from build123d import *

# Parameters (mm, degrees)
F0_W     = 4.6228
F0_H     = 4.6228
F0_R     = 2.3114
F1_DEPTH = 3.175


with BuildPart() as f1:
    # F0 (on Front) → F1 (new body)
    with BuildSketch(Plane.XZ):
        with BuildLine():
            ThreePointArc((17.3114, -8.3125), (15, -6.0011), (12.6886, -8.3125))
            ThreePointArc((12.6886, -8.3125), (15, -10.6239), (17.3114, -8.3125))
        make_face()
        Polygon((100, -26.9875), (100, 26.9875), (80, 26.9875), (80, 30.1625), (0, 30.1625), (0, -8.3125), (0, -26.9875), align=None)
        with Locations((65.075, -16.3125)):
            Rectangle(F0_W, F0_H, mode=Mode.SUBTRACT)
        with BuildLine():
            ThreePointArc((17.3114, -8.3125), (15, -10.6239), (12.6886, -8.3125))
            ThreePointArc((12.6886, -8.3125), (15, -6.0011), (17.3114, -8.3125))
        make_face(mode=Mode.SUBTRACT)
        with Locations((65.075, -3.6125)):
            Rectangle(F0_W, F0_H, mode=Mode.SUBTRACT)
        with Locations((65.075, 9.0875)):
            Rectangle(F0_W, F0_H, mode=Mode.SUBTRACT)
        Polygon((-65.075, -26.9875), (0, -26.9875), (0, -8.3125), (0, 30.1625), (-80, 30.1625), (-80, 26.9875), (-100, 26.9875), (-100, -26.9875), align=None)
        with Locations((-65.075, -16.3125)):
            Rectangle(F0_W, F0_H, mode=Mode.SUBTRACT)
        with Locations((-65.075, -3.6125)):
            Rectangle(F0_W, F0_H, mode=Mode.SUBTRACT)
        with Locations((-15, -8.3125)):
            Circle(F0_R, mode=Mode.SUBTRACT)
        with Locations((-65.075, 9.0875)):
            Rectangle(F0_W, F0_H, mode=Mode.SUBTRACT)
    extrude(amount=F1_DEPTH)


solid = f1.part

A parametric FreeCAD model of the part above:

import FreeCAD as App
import Part
import Sketcher

V = App.Vector

doc = App.newDocument("Part")
body = doc.addObject("PartDesign::Body", "Body")

sketch1 = doc.addObject("Sketcher::SketchObject", "Sketch")
body.addObject(sketch1)
sketch1.AttachmentSupport = (doc.XZ_Plane, [""])
sketch1.MapMode = "FlatFace"
sketch1.addGeometry([
    Part.LineSegment(V(100, -26.9875, 0), V(100, 26.9875, 0)),
    Part.LineSegment(V(100, 26.9875, 0), V(80, 26.9875, 0)),
    Part.LineSegment(V(80, 26.9875, 0), V(80, 30.1625, 0)),
    Part.LineSegment(V(80, 30.1625, 0), V(-80, 30.1625, 0)),
    Part.LineSegment(V(-80, 30.1625, 0), V(-80, 26.9875, 0)),
    Part.LineSegment(V(-80, 26.9875, 0), V(-100, 26.9875, 0)),
    Part.LineSegment(V(-100, 26.9875, 0), V(-100, -26.9875, 0)),
    Part.LineSegment(V(-100, -26.9875, 0), V(100, -26.9875, 0)),
    Part.LineSegment(V(-62.7636, -18.6239, 0), V(-67.3864, -18.6239, 0)),
    Part.LineSegment(V(-67.3864, -18.6239, 0), V(-67.3864, -14.0011, 0)),
    Part.LineSegment(V(-67.3864, -14.0011, 0), V(-62.7636, -14.0011, 0)),
    Part.LineSegment(V(-62.7636, -14.0011, 0), V(-62.7636, -18.6239, 0)),
    Part.LineSegment(V(-62.7636, -5.9239, 0), V(-67.3864, -5.9239, 0)),
    Part.LineSegment(V(-67.3864, -5.9239, 0), V(-67.3864, -1.3011, 0)),
    Part.LineSegment(V(-67.3864, -1.3011, 0), V(-62.7636, -1.3011, 0)),
    Part.LineSegment(V(-62.7636, -1.3011, 0), V(-62.7636, -5.9239, 0)),
    Part.Circle(V(-15, -8.3125, 0), V(0, 0, 1), 2.3114),
    Part.LineSegment(V(67.3864, -18.6239, 0), V(62.7636, -18.6239, 0)),
    Part.LineSegment(V(62.7636, -18.6239, 0), V(62.7636, -14.0011, 0)),
    Part.LineSegment(V(62.7636, -14.0011, 0), V(67.3864, -14.0011, 0)),
    Part.LineSegment(V(67.3864, -14.0011, 0), V(67.3864, -18.6239, 0)),
    Part.Circle(V(15, -8.3125, 0), V(0, 0, 1), 2.3114),
    Part.LineSegment(V(67.3864, -5.9239, 0), V(62.7636, -5.9239, 0)),
    Part.LineSegment(V(62.7636, -5.9239, 0), V(62.7636, -1.3011, 0)),
    Part.LineSegment(V(62.7636, -1.3011, 0), V(67.3864, -1.3011, 0)),
    Part.LineSegment(V(67.3864, -1.3011, 0), V(67.3864, -5.9239, 0)),
    Part.LineSegment(V(-62.7636, 6.7761, 0), V(-67.3864, 6.7761, 0)),
    Part.LineSegment(V(-67.3864, 6.7761, 0), V(-67.3864, 11.3989, 0)),
    Part.LineSegment(V(-67.3864, 11.3989, 0), V(-62.7636, 11.3989, 0)),
    Part.LineSegment(V(-62.7636, 11.3989, 0), V(-62.7636, 6.7761, 0)),
    Part.LineSegment(V(67.3864, 6.7761, 0), V(62.7636, 6.7761, 0)),
    Part.LineSegment(V(62.7636, 6.7761, 0), V(62.7636, 11.3989, 0)),
    Part.LineSegment(V(62.7636, 11.3989, 0), V(67.3864, 11.3989, 0)),
    Part.LineSegment(V(67.3864, 11.3989, 0), V(67.3864, 6.7761, 0)),
], False)
sketch1.addConstraint([
    Sketcher.Constraint("Coincident", 0, 2, 1, 1),
    Sketcher.Constraint("Coincident", 1, 2, 2, 1),
    Sketcher.Constraint("Coincident", 2, 2, 3, 1),
    Sketcher.Constraint("Coincident", 3, 2, 4, 1),
    Sketcher.Constraint("Coincident", 4, 2, 5, 1),
    Sketcher.Constraint("Coincident", 5, 2, 6, 1),
    Sketcher.Constraint("Coincident", 6, 2, 7, 1),
    Sketcher.Constraint("Coincident", 7, 2, 0, 1),
    Sketcher.Constraint("Coincident", 8, 2, 9, 1),
    Sketcher.Constraint("Coincident", 9, 2, 10, 1),
    Sketcher.Constraint("Coincident", 10, 2, 11, 1),
    Sketcher.Constraint("Coincident", 11, 2, 8, 1),
    Sketcher.Constraint("Coincident", 12, 2, 13, 1),
    Sketcher.Constraint("Coincident", 13, 2, 14, 1),
    Sketcher.Constraint("Coincident", 14, 2, 15, 1),
    Sketcher.Constraint("Coincident", 15, 2, 12, 1),
    Sketcher.Constraint("Coincident", 17, 2, 18, 1),
    Sketcher.Constraint("Coincident", 18, 2, 19, 1),
    Sketcher.Constraint("Coincident", 19, 2, 20, 1),
    Sketcher.Constraint("Coincident", 20, 2, 17, 1),
    Sketcher.Constraint("Coincident", 22, 2, 23, 1),
    Sketcher.Constraint("Coincident", 23, 2, 24, 1),
    Sketcher.Constraint("Coincident", 24, 2, 25, 1),
    Sketcher.Constraint("Coincident", 25, 2, 22, 1),
    Sketcher.Constraint("Coincident", 26, 2, 27, 1),
    Sketcher.Constraint("Coincident", 27, 2, 28, 1),
    Sketcher.Constraint("Coincident", 28, 2, 29, 1),
    Sketcher.Constraint("Coincident", 29, 2, 26, 1),
    Sketcher.Constraint("Coincident", 30, 2, 31, 1),
    Sketcher.Constraint("Coincident", 31, 2, 32, 1),
    Sketcher.Constraint("Coincident", 32, 2, 33, 1),
    Sketcher.Constraint("Coincident", 33, 2, 30, 1),
    Sketcher.Constraint("Vertical", 0),
    Sketcher.Constraint("Horizontal", 1),
    Sketcher.Constraint("Vertical", 2),
    Sketcher.Constraint("Horizontal", 3),
    Sketcher.Constraint("Vertical", 4),
    Sketcher.Constraint("Horizontal", 5),
    Sketcher.Constraint("Vertical", 6),
    Sketcher.Constraint("Horizontal", 7),
    Sketcher.Constraint("Horizontal", 8),
    Sketcher.Constraint("Vertical", 9),
    Sketcher.Constraint("Horizontal", 10),
    Sketcher.Constraint("Vertical", 11),
    Sketcher.Constraint("Horizontal", 12),
    Sketcher.Constraint("Vertical", 13),
    Sketcher.Constraint("Horizontal", 14),
    Sketcher.Constraint("Vertical", 15),
    Sketcher.Constraint("Horizontal", 17),
    Sketcher.Constraint("Vertical", 18),
    Sketcher.Constraint("Horizontal", 19),
    Sketcher.Constraint("Vertical", 20),
    Sketcher.Constraint("Horizontal", 22),
    Sketcher.Constraint("Vertical", 23),
    Sketcher.Constraint("Horizontal", 24),
    Sketcher.Constraint("Vertical", 25),
    Sketcher.Constraint("Horizontal", 26),
    Sketcher.Constraint("Vertical", 27),
    Sketcher.Constraint("Horizontal", 28),
    Sketcher.Constraint("Vertical", 29),
    Sketcher.Constraint("Horizontal", 30),
    Sketcher.Constraint("Vertical", 31),
    Sketcher.Constraint("Horizontal", 32),
    Sketcher.Constraint("Vertical", 33),
    Sketcher.Constraint("Equal", 16, 21),
    Sketcher.Constraint("Symmetric", 0, 2, 6, 2, -1, 1),
    Sketcher.Constraint("Symmetric", 16, 3, 21, 3, -2),
    Sketcher.Constraint("Symmetric", 1, 2, 4, 2, -2),
    Sketcher.Constraint("Symmetric", 11, 2, 17, 2, -2),
    Sketcher.Constraint("Symmetric", 9, 2, 19, 2, -2),
    Sketcher.Constraint("Symmetric", 15, 2, 22, 2, -2),
    Sketcher.Constraint("Symmetric", 13, 2, 24, 2, -2),
    Sketcher.Constraint("Symmetric", 29, 2, 30, 2, -2),
    Sketcher.Constraint("Symmetric", 27, 2, 32, 2, -2),
    Sketcher.Constraint("Vertical", 9, 2, 12, 2),
    Sketcher.Constraint("Vertical", 11, 2, 14, 2),
    Sketcher.Constraint("Vertical", 13, 2, 26, 2),
    Sketcher.Constraint("Vertical", 15, 2, 28, 2),
    Sketcher.Constraint("Equal", 32, 9),
    Sketcher.Constraint("Equal", 11, 13),
    Sketcher.Constraint("Equal", 25, 27),
    Sketcher.Constraint("DistanceX", 1, 2, 1, 1, 20.0),
    Sketcher.Constraint("DistanceX", 3, 2, 3, 1, 160.0),
    Sketcher.Constraint("DistanceX", 16, 3, -1, 1, 15.0),
    Sketcher.Constraint("Diameter", 16, 4.6228),
    Sketcher.Constraint("DistanceY", 21, 3, 0, 2, 35.3),
    Sketcher.Constraint("DistanceY", 8, 2, 12, 2, 12.7),
    Sketcher.Constraint("DistanceY", 12, 2, 26, 2, 12.7),
    Sketcher.Constraint("DistanceY", 0, 1, 0, 2, 53.975),
    Sketcher.Constraint("DistanceY", 2, 1, 2, 2, 3.175),
    Sketcher.Constraint("DistanceX", 8, 2, 8, 1, 4.6228),
    Sketcher.Constraint("DistanceX", 8, 2, -1, 1, 67.3864),
    Sketcher.Constraint("DistanceY", 8, 2, -1, 1, 18.6239),
])
pad1 = doc.addObject("PartDesign::Pad", "Pad")
body.addObject(pad1)
pad1.Profile = sketch1
pad1.Length = 3.175

doc.recompute()
